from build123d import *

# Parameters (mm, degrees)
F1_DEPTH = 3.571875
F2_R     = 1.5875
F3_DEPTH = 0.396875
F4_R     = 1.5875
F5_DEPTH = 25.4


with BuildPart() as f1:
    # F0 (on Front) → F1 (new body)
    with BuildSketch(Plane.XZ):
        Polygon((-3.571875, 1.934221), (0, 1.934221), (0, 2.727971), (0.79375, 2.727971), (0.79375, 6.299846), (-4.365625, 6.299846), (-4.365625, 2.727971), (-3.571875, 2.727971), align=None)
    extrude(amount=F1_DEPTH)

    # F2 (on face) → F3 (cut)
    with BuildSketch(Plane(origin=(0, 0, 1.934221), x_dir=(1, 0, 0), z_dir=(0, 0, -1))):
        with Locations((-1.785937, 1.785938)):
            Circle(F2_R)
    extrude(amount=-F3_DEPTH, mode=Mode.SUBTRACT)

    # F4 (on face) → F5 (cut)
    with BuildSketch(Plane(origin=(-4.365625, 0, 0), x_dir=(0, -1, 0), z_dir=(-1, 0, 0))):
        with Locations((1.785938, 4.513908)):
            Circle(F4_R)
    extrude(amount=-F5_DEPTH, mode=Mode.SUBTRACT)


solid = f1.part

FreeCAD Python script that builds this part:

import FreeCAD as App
import Part
import Sketcher

V = App.Vector
Q = App.Units.Quantity

doc = App.newDocument("Part")
body = doc.addObject("PartDesign::Body", "Body")

# Sketch on XZ plane
sketch1 = body.newObject("Sketcher::SketchObject", "Sketch")
sketch1.AttachmentSupport = (doc.getObject("XZ_Plane"), [""])
sketch1.MapMode = "FlatFace"
sketch1.addGeometry(Part.LineSegment(V(-3.571875, 1.934221, 0), V(0, 1.934221, 0)), False)
sketch1.addGeometry(Part.LineSegment(V(0, 1.934221, 0), V(0, 2.727971, 0)), False)
sketch1.addGeometry(Part.LineSegment(V(0, 2.727971, 0), V(0.79375, 2.727971, 0)), False)
sketch1.addGeometry(Part.LineSegment(V(0.79375, 2.727971, 0), V(0.79375, 6.299846, 0)), False)
sketch1.addGeometry(Part.LineSegment(V(0.79375, 6.299846, 0), V(-4.365625, 6.299846, 0)), False)
sketch1.addGeometry(Part.LineSegment(V(-4.365625, 6.299846, 0), V(-4.365625, 2.727971, 0)), False)
sketch1.addGeometry(Part.LineSegment(V(-4.365625, 2.727971, 0), V(-3.571875, 2.727971, 0)), False)
sketch1.addGeometry(Part.LineSegment(V(-3.571875, 2.727971, 0), V(-3.571875, 1.934221, 0)), False)
sketch1.addConstraint(Sketcher.Constraint("Coincident", 0, 2, 1, 1))
sketch1.addConstraint(Sketcher.Constraint("Coincident", 1, 2, 2, 1))
sketch1.addConstraint(Sketcher.Constraint("Coincident", 2, 2, 3, 1))
sketch1.addConstraint(Sketcher.Constraint("Coincident", 3, 2, 4, 1))
sketch1.addConstraint(Sketcher.Constraint("Coincident", 4, 2, 5, 1))
sketch1.addConstraint(Sketcher.Constraint("Coincident", 5, 2, 6, 1))
sketch1.addConstraint(Sketcher.Constraint("Coincident", 6, 2, 7, 1))
sketch1.addConstraint(Sketcher.Constraint("Coincident", 7, 2, 0, 1))
sketch1.addConstraint(Sketcher.Constraint("Horizontal", 0))
sketch1.addConstraint(Sketcher.Constraint("Vertical", 1))
sketch1.addConstraint(Sketcher.Constraint("Horizontal", 2))
sketch1.addConstraint(Sketcher.Constraint("Vertical", 3))
sketch1.addConstraint(Sketcher.Constraint("Horizontal", 4))
sketch1.addConstraint(Sketcher.Constraint("Vertical", 5))
sketch1.addConstraint(Sketcher.Constraint("Horizontal", 6))
sketch1.addConstraint(Sketcher.Constraint("Vertical", 7))
sketch1.addConstraint(Sketcher.Constraint("PointOnObject", 0, 2, -2))
sketch1.addConstraint(Sketcher.Constraint("Horizontal", 2, 2, 5, 2))
sketch1.addConstraint(Sketcher.Constraint("Equal", 2, 6))
sketch1.addConstraint(Sketcher.Constraint("Equal", 6, 1))
sketch1.addConstraint(Sketcher.Constraint("Equal", 0, 3))
sketch1.addConstraint(Sketcher.Constraint("DistanceX", 0, 1, 0, 2, Q("0.140625 in")))
sketch1.addConstraint(Sketcher.Constraint("DistanceX", 2, 1, 2, 2, Q("0.03125 in")))
sketch1.addConstraint(Sketcher.Constraint("DistanceY", -1, 1, 0, 2, 1.934221))
pad1 = body.newObject("PartDesign::Pad", "Pad")
pad1.Profile = sketch1
pad1.Length = Q("0.140625 in")

# Sketch on XY plane
sketch2 = body.newObject("Sketcher::SketchObject", "Sketch001")
sketch2.AttachmentSupport = (doc.getObject("XY_Plane"), [""])
sketch2.MapMode = "FlatFace"
sketch2.AttachmentOffset = App.Placement(V(0, 0, 1.934221), App.Rotation())
sketch2.addGeometry(Part.Circle(V(-1.785937, -1.785938, 0), V(0, 0, 1), 1.5875), False)
sketch2.addConstraint(Sketcher.Constraint("Diameter", 0, Q("0.125 in")))
sketch2.addConstraint(Sketcher.Constraint("DistanceX", 0, 3, -1, 1, 1.785937))
sketch2.addConstraint(Sketcher.Constraint("DistanceY", 0, 3, -1, 1, 1.785938))
pocket1 = body.newObject("PartDesign::Pocket", "Pocket")
pocket1.Profile = sketch2
pocket1.Length = Q("0.015625 in")
pocket1.Reversed = True

# Sketch on YZ plane
sketch3 = body.newObject("Sketcher::SketchObject", "Sketch002")
sketch3.AttachmentSupport = (doc.getObject("YZ_Plane"), [""])
sketch3.MapMode = "FlatFace"
sketch3.AttachmentOffset = App.Placement(V(0, 0, -0.171875 * 25.4), App.Rotation())
sketch3.addGeometry(Part.Circle(V(-1.785938, 4.513908, 0), V(0, 0, 1), 1.5875), False)
sketch3.addConstraint(Sketcher.Constraint("Diameter", 0, Q("0.125 in")))
sketch3.addConstraint(Sketcher.Constraint("DistanceX", 0, 3, -1, 1, 1.785938))
sketch3.addConstraint(Sketcher.Constraint("DistanceY", -1, 1, 0, 3, 4.513908))
pocket2 = body.newObject("PartDesign::Pocket", "Pocket001")
pocket2.Profile = sketch3
pocket2.Length = Q("1 in")
pocket2.Reversed = True

doc.recompute()
